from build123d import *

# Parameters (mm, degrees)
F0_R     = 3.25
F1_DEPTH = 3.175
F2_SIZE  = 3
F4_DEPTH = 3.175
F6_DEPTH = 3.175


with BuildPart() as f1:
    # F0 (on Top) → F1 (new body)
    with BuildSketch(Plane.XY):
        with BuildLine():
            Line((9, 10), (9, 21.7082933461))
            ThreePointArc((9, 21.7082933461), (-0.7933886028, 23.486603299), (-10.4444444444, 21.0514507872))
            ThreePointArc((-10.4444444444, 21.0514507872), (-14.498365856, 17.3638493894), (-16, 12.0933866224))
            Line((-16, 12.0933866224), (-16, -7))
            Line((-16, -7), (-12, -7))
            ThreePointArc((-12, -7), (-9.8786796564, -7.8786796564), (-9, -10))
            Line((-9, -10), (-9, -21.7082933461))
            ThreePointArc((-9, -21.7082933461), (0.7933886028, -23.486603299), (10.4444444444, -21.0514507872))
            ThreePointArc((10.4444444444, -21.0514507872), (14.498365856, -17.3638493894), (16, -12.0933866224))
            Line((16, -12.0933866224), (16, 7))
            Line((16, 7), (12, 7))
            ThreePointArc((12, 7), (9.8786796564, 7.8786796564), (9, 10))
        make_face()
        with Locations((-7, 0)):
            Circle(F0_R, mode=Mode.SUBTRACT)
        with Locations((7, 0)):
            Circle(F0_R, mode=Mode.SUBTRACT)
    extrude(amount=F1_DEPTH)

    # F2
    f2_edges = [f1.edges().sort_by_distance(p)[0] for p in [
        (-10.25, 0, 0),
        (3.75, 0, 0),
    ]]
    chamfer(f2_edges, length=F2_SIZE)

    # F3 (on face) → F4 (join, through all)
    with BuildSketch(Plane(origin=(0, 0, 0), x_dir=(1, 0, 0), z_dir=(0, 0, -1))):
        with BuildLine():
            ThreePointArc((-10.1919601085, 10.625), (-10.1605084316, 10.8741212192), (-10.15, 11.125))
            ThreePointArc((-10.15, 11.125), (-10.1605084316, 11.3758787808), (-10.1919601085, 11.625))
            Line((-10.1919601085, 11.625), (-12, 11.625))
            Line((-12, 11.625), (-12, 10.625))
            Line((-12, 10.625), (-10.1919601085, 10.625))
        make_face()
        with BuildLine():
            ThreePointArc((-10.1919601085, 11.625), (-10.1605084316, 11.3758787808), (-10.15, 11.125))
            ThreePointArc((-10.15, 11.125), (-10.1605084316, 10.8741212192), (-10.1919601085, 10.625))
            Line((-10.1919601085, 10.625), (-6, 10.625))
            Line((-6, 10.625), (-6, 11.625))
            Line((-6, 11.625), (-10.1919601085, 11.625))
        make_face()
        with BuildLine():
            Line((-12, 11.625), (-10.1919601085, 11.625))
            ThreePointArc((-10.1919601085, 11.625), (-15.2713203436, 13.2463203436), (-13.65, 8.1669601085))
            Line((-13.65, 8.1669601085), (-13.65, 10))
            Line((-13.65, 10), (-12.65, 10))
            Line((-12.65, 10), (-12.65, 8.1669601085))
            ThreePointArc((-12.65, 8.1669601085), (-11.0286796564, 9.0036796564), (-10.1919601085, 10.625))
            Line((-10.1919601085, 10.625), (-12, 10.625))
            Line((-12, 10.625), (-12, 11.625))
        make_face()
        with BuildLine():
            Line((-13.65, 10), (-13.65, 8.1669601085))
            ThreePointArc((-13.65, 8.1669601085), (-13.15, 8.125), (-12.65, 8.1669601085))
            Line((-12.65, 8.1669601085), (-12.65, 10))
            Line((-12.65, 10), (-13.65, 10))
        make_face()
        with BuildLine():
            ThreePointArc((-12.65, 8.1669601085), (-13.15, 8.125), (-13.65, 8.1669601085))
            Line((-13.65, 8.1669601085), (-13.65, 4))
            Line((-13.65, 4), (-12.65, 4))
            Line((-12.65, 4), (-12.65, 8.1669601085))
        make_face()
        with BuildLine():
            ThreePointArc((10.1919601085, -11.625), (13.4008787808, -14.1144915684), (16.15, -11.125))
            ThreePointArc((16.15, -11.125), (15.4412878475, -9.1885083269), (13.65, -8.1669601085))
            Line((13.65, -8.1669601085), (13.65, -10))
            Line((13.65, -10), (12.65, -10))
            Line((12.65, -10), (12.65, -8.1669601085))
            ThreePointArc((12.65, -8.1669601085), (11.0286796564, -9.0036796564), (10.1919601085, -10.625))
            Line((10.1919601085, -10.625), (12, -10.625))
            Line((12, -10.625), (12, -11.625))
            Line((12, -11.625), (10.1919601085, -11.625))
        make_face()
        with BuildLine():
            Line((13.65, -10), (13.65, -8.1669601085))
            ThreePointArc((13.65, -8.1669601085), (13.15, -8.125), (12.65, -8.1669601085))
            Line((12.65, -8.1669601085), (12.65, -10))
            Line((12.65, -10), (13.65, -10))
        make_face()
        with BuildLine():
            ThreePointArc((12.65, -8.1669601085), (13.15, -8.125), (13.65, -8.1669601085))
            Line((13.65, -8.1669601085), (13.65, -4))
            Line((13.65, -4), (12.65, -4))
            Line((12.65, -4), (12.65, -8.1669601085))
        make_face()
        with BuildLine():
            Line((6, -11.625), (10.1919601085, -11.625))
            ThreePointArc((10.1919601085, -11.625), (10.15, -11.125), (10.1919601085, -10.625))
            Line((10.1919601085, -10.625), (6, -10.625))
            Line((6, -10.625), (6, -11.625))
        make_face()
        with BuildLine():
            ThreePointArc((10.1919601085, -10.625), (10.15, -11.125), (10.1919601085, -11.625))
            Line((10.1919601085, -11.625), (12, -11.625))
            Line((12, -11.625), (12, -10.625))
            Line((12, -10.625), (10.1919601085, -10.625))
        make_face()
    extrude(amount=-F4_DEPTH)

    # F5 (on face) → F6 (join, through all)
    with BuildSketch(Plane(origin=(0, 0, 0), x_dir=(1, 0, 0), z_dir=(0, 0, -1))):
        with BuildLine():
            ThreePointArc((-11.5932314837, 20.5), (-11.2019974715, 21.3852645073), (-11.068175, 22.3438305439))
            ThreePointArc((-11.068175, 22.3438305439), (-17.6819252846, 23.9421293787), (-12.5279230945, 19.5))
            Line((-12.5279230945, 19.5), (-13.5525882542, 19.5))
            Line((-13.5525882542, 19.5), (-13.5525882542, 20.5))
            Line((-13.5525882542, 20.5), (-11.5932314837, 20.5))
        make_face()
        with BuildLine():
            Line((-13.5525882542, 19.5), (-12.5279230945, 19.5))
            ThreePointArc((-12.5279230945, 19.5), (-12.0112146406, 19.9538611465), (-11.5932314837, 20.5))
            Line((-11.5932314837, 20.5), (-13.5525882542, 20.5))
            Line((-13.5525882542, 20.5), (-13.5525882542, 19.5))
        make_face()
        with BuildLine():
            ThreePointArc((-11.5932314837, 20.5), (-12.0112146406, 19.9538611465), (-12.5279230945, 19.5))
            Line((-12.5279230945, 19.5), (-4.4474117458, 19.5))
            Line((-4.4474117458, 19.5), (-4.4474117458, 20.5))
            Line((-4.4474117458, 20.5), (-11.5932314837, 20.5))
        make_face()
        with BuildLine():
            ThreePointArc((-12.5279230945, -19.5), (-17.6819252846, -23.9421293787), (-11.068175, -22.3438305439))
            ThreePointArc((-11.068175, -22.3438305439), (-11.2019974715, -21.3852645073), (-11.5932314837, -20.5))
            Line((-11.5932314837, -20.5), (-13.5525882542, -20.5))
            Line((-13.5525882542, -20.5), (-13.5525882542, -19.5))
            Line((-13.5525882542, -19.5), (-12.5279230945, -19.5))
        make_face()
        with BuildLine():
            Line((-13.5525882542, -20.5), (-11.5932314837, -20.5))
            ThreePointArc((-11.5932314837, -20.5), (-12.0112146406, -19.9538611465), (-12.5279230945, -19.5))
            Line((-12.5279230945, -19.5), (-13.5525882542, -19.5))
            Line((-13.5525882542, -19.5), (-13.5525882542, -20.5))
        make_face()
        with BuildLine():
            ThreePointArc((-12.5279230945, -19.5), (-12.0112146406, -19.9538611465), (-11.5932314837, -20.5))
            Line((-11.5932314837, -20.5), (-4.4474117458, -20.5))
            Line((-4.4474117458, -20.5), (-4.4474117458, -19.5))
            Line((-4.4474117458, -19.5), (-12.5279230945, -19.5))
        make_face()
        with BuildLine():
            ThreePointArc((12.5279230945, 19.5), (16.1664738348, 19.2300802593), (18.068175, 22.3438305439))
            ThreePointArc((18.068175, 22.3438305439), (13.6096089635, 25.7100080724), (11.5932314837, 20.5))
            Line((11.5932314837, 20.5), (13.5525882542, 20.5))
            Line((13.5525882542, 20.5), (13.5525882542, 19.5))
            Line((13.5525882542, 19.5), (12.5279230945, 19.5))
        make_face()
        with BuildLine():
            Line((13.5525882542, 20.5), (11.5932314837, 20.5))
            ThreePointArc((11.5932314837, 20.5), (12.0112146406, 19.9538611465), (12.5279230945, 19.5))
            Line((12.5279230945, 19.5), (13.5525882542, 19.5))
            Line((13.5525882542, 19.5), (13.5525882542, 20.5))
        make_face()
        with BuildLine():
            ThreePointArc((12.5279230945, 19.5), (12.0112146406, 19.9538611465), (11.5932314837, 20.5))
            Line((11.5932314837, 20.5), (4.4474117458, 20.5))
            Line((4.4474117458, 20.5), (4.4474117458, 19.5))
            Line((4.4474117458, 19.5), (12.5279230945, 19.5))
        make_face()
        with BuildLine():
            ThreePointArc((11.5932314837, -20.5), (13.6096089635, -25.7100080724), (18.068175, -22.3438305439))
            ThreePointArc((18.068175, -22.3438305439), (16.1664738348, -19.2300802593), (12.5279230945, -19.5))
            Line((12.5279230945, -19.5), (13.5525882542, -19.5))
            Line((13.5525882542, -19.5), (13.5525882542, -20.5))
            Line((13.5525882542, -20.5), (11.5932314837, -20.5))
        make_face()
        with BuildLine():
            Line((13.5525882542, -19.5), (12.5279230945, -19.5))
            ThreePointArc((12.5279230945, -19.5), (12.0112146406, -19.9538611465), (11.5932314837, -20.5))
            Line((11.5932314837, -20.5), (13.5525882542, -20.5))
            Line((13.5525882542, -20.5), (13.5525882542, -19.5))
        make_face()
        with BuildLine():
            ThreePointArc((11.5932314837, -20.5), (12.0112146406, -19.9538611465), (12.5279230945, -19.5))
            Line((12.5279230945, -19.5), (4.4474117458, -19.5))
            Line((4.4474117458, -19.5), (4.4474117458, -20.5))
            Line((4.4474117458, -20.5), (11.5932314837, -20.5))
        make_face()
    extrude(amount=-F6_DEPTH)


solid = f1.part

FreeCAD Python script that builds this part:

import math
import FreeCAD as App
import Part
import Sketcher
from FreeCAD import Vector


def edges_at(feature, points):
    """Names of the edges that pass closest to the given points."""
    edges = feature.Shape.Edges
    near = lambda p: min(range(len(edges)), key=lambda i: edges[i].distToShape(Part.Vertex(*p))[0])
    return sorted({f"Edge{near(p) + 1}" for p in points})

doc = App.newDocument("Part")
body = doc.addObject("PartDesign::Body", "Body")

sketch1 = doc.addObject("Sketcher::SketchObject", "Sketch")
body.addObject(sketch1)
sketch1.AttachmentSupport = (doc.XY_Plane, [""])
sketch1.MapMode = "FlatFace"
sketch1.addGeometry(Part.LineSegment(Vector(9, 10, 0), Vector(9, 21.708293, 0)), False)
sketch1.addGeometry(Part.ArcOfCircle(Part.Circle(Vector(0, 0, 0), Vector(0, 0, 1), 23.5), math.radians(67.481686), math.radians(116.3878)), False)
sketch1.addGeometry(Part.ArcOfCircle(Part.Circle(Vector(-6, 12.093387, 0), Vector(0, 0, 1), 10), math.radians(116.3878), math.radians(180)), False)
sketch1.addGeometry(Part.LineSegment(Vector(-16, 12.093387, 0), Vector(-16, -7, 0)), False)
sketch1.addGeometry(Part.LineSegment(Vector(-16, -7, 0), Vector(-12, -7, 0)), False)
sketch1.addGeometry(Part.ArcOfCircle(Part.Circle(Vector(-12, -10, 0), Vector(0, 0, 1), 3), math.radians(0), math.radians(90)), False)
sketch1.addGeometry(Part.LineSegment(Vector(-9, -10, 0), Vector(-9, -21.708293, 0)), False)
sketch1.addGeometry(Part.ArcOfCircle(Part.Circle(Vector(0, 0, 0), Vector(0, 0, 1), 23.5), math.radians(-112.518314), math.radians(-63.6122)), False)
sketch1.addGeometry(Part.ArcOfCircle(Part.Circle(Vector(6, -12.093387, 0), Vector(0, 0, 1), 10), math.radians(-63.6122), math.radians(0)), False)
sketch1.addGeometry(Part.LineSegment(Vector(16, -12.093387, 0), Vector(16, 7, 0)), False)
sketch1.addGeometry(Part.LineSegment(Vector(16, 7, 0), Vector(12, 7, 0)), False)
sketch1.addGeometry(Part.ArcOfCircle(Part.Circle(Vector(12, 10, 0), Vector(0, 0, 1), 3), math.radians(180), math.radians(270)), False)
sketch1.addGeometry(Part.Circle(Vector(-7, 0, 0), Vector(0, 0, 1), 3.25), False)
sketch1.addGeometry(Part.Circle(Vector(7, 0, 0), Vector(0, 0, 1), 3.25), False)
sketch1.addConstraint(Sketcher.Constraint("Coincident", 0, 2, 1, 1))
sketch1.addConstraint(Sketcher.Constraint("Tangent", 1, 2, 2, 1))
sketch1.addConstraint(Sketcher.Constraint("Tangent", 2, 2, 3, 1))
sketch1.addConstraint(Sketcher.Constraint("Coincident", 3, 2, 4, 1))
sketch1.addConstraint(Sketcher.Constraint("Tangent", 4, 2, 5, 2))
sketch1.addConstraint(Sketcher.Constraint("Tangent", 5, 1, 6, 1))
sketch1.addConstraint(Sketcher.Constraint("Coincident", 6, 2, 7, 1))
sketch1.addConstraint(Sketcher.Constraint("Tangent", 7, 2, 8, 1))
sketch1.addConstraint(Sketcher.Constraint("Tangent", 8, 2, 9, 1))
sketch1.addConstraint(Sketcher.Constraint("Coincident", 9, 2, 10, 1))
sketch1.addConstraint(Sketcher.Constraint("Tangent", 10, 2, 11, 2))
sketch1.addConstraint(Sketcher.Constraint("Tangent", 11, 1, 0, 1))
sketch1.addConstraint(Sketcher.Constraint("Vertical", 0))
sketch1.addConstraint(Sketcher.Constraint("Vertical", 3))
sketch1.addConstraint(Sketcher.Constraint("Horizontal", 4))
sketch1.addConstraint(Sketcher.Constraint("Vertical", 6))
sketch1.addConstraint(Sketcher.Constraint("Vertical", 9))
sketch1.addConstraint(Sketcher.Constraint("Horizontal", 10))
sketch1.addConstraint(Sketcher.Constraint("Coincident", 1, 3, -1, 1))
sketch1.addConstraint(Sketcher.Constraint("Coincident", 7, 3, -1, 1))
sketch1.addConstraint(Sketcher.Constraint("Equal", 1, 7))
sketch1.addConstraint(Sketcher.Constraint("Equal", 2, 8))
sketch1.addConstraint(Sketcher.Constraint("Equal", 5, 11))
sketch1.addConstraint(Sketcher.Constraint("Equal", 12, 13))
sketch1.addConstraint(Sketcher.Constraint("Symmetric", 5, 3, 11, 3, -1, 1))
sketch1.addConstraint(Sketcher.Constraint("Symmetric", 12, 3, 13, 3, -1, 1))
sketch1.addConstraint(Sketcher.Constraint("PointOnObject", 12, 3, -1))
sketch1.addConstraint(Sketcher.Constraint("Equal", 4, 10))
sketch1.addConstraint(Sketcher.Constraint("Radius", 2, 10.0))
sketch1.addConstraint(Sketcher.Constraint("Radius", 5, 3.0))
sketch1.addConstraint(Sketcher.Constraint("Diameter", 12, 6.5))
sketch1.addConstraint(Sketcher.Constraint("Radius", 1, 23.5))
sketch1.addConstraint(Sketcher.Constraint("DistanceX", 4, 1, 4, 2, 4.0))
sketch1.addConstraint(Sketcher.Constraint("DistanceX", 2, 3, -1, 1, 6.0))
sketch1.addConstraint(Sketcher.Constraint("DistanceY", 5, 3, -1, 1, 10.0))
sketch1.addConstraint(Sketcher.Constraint("DistanceX", 12, 3, -1, 1, 7.0))
pad1 = doc.addObject("PartDesign::Pad", "Pad")
body.addObject(pad1)
pad1.Profile = sketch1
pad1.Length = 3.175
doc.recompute()

chamfer = doc.addObject("PartDesign::Chamfer", "Chamfer")
body.addObject(chamfer)
chamfer.Base = (pad1, edges_at(pad1, [(-10.25, 0, 0), (3.75, 0, 0)]))
chamfer.Size = 3

sketch2 = doc.addObject("Sketcher::SketchObject", "Sketch001")
body.addObject(sketch2)
sketch2.AttachmentSupport = (doc.XY_Plane, [""])
sketch2.MapMode = "FlatFace"
sketch2.addGeometry(Part.LineSegment(Vector(-10.19196, -10.625, 0), Vector(-6, -10.625, 0)), False)
sketch2.addGeometry(Part.LineSegment(Vector(-6, -10.625, 0), Vector(-6, -11.625, 0)), False)
sketch2.addGeometry(Part.LineSegment(Vector(-6, -11.625, 0), Vector(-10.19196, -11.625, 0)), False)
sketch2.addGeometry(Part.ArcOfCircle(Part.Circle(Vector(-13.15, -11.125, 0), Vector(0, 0, 1), 3), math.radians(99.594068), math.radians(350.405932)), False)
sketch2.addGeometry(Part.LineSegment(Vector(-13.65, -8.16696, 0), Vector(-13.65, -4, 0)), False)
sketch2.addGeometry(Part.LineSegment(Vector(-13.65, -4, 0), Vector(-12.65, -4, 0)), False)
sketch2.addGeometry(Part.LineSegment(Vector(-12.65, -4, 0), Vector(-12.65, -8.16696, 0)), False)
sketch2.addGeometry(Part.ArcOfCircle(Part.Circle(Vector(-13.15, -11.125, 0), Vector(0, 0, 1), 3), math.radians(9.594068), math.radians(80.405932)), False)
sketch2.addGeometry(Part.ArcOfCircle(Part.Circle(Vector(13.15, 11.125, 0), Vector(0, 0, 1), 3), math.radians(0), math.radians(170.405932)), False)
sketch2.addGeometry(Part.ArcOfCircle(Part.Circle(Vector(13.15, 11.125, 0), Vector(0, 0, 1), 3), math.radians(-80.405932), math.radians(0)), False)
sketch2.addGeometry(Part.LineSegment(Vector(13.65, 8.16696, 0), Vector(13.65, 4, 0)), False)
sketch2.addGeometry(Part.LineSegment(Vector(13.65, 4, 0), Vector(12.65, 4, 0)), False)
sketch2.addGeometry(Part.LineSegment(Vector(12.65, 4, 0), Vector(12.65, 8.16696, 0)), False)
sketch2.addGeometry(Part.ArcOfCircle(Part.Circle(Vector(13.15, 11.125, 0), Vector(0, 0, 1), 3), math.radians(-170.405932), math.radians(-99.594068)), False)
sketch2.addGeometry(Part.LineSegment(Vector(10.19196, 10.625, 0), Vector(6, 10.625, 0)), False)
sketch2.addGeometry(Part.LineSegment(Vector(6, 10.625, 0), Vector(6, 11.625, 0)), False)
sketch2.addGeometry(Part.LineSegment(Vector(6, 11.625, 0), Vector(10.19196, 11.625, 0)), False)
sketch2.addConstraint(Sketcher.Constraint("Coincident", 0, 2, 1, 1))
sketch2.addConstraint(Sketcher.Constraint("Coincident", 1, 2, 2, 1))
sketch2.addConstraint(Sketcher.Constraint("Coincident", 2, 2, 3, 2))
sketch2.addConstraint(Sketcher.Constraint("Coincident", 3, 1, 4, 1))
sketch2.addConstraint(Sketcher.Constraint("Coincident", 4, 2, 5, 1))
sketch2.addConstraint(Sketcher.Constraint("Coincident", 5, 2, 6, 1))
sketch2.addConstraint(Sketcher.Constraint("Coincident", 6, 2, 7, 2))
sketch2.addConstraint(Sketcher.Constraint("Coincident", 7, 1, 0, 1))
sketch2.addConstraint(Sketcher.Constraint("Tangent", 8, 1, 9, 2))
sketch2.addConstraint(Sketcher.Constraint("Coincident", 9, 1, 10, 1))
sketch2.addConstraint(Sketcher.Constraint("Coincident", 10, 2, 11, 1))
sketch2.addConstraint(Sketcher.Constraint("Coincident", 11, 2, 12, 1))
sketch2.addConstraint(Sketcher.Constraint("Coincident", 12, 2, 13, 2))
sketch2.addConstraint(Sketcher.Constraint("Coincident", 13, 1, 14, 1))
sketch2.addConstraint(Sketcher.Constraint("Coincident", 14, 2, 15, 1))
sketch2.addConstraint(Sketcher.Constraint("Coincident", 15, 2, 16, 1))
sketch2.addConstraint(Sketcher.Constraint("Coincident", 16, 2, 8, 2))
sketch2.addConstraint(Sketcher.Constraint("Horizontal", 0))
sketch2.addConstraint(Sketcher.Constraint("Vertical", 1))
sketch2.addConstraint(Sketcher.Constraint("Horizontal", 2))
sketch2.addConstraint(Sketcher.Constraint("Vertical", 4))
sketch2.addConstraint(Sketcher.Constraint("Horizontal", 5))
sketch2.addConstraint(Sketcher.Constraint("Vertical", 6))
sketch2.addConstraint(Sketcher.Constraint("Vertical", 10))
sketch2.addConstraint(Sketcher.Constraint("Horizontal", 11))
sketch2.addConstraint(Sketcher.Constraint("Vertical", 12))
sketch2.addConstraint(Sketcher.Constraint("Horizontal", 14))
sketch2.addConstraint(Sketcher.Constraint("Vertical", 15))
sketch2.addConstraint(Sketcher.Constraint("Horizontal", 16))
sketch2.addConstraint(Sketcher.Constraint("Coincident", 7, 3, 3, 3))
sketch2.addConstraint(Sketcher.Constraint("Coincident", 13, 3, 8, 3))
sketch2.addConstraint(Sketcher.Constraint("Equal", 3, 7))
sketch2.addConstraint(Sketcher.Constraint("Equal", 7, 8))
sketch2.addConstraint(Sketcher.Constraint("Equal", 8, 9))
sketch2.addConstraint(Sketcher.Constraint("Equal", 9, 13))
sketch2.addConstraint(Sketcher.Constraint("Symmetric", 3, 3, 8, 3, -1, 1))
sketch2.addConstraint(Sketcher.Constraint("Symmetric", 4, 2, 10, 2, -1, 1))
sketch2.addConstraint(Sketcher.Constraint("Symmetric", 0, 2, 14, 2, -1, 1))
sketch2.addConstraint(Sketcher.Constraint("Horizontal", 3, 1, 6, 2))
sketch2.addConstraint(Sketcher.Constraint("Horizontal", 13, 3, 8, 1))
sketch2.addConstraint(Sketcher.Constraint("Horizontal", 9, 1, 12, 2))
sketch2.addConstraint(Sketcher.Constraint("Vertical", 2, 2, 7, 1))
sketch2.addConstraint(Sketcher.Constraint("Vertical", 13, 1, 16, 2))
sketch2.addConstraint(Sketcher.Constraint("Equal", 11, 1))
sketch2.addConstraint(Sketcher.Constraint("Radius", 3, 3.0))
sketch2.addConstraint(Sketcher.Constraint("DistanceX", 5, 1, 5, 2, 1.0))
sketch2.addConstraint(Sketcher.Constraint("DistanceX", 0, 2, -1, 1, 6.0))
sketch2.addConstraint(Sketcher.Constraint("DistanceY", 4, 2, -1, 1, 4.0))
sketch2.addConstraint(Sketcher.Constraint("DistanceX", 3, 3, 8, 3, 26.3))
sketch2.addConstraint(Sketcher.Constraint("DistanceY", 3, 3, 8, 3, 22.25))
pad2 = doc.addObject("PartDesign::Pad", "Pad001")
body.addObject(pad2)
pad2.Profile = sketch2
pad2.Type = "UpToLast"

sketch3 = doc.addObject("Sketcher::SketchObject", "Sketch002")
body.addObject(sketch3)
sketch3.AttachmentSupport = (doc.XY_Plane, [""])
sketch3.MapMode = "FlatFace"
sketch3.addGeometry(Part.ArcOfCircle(Part.Circle(Vector(-14.568175, -22.343831, 0), Vector(0, 0, 1), 3.5), math.radians(0), math.radians(31.790086)), False)
sketch3.addGeometry(Part.ArcOfCircle(Part.Circle(Vector(-14.568175, -22.343831, 0), Vector(0, 0, 1), 3.5), math.radians(54.343174), math.radians(360)), False)
sketch3.addGeometry(Part.LineSegment(Vector(-12.527923, -19.5, 0), Vector(-4.447412, -19.5, 0)), False)
sketch3.addGeometry(Part.LineSegment(Vector(-4.447412, -19.5, 0), Vector(-4.447412, -20.5, 0)), False)
sketch3.addGeometry(Part.LineSegment(Vector(-4.447412, -20.5, 0), Vector(-11.593231, -20.5, 0)), False)
sketch3.addGeometry(Part.ArcOfCircle(Part.Circle(Vector(-14.568175, 22.343831, 0), Vector(0, 0, 1), 3.5), math.radians(0), math.radians(305.656826)), False)
sketch3.addGeometry(Part.ArcOfCircle(Part.Circle(Vector(-14.568175, 22.343831, 0), Vector(0, 0, 1), 3.5), math.radians(-31.790086), math.radians(0)), False)
sketch3.addGeometry(Part.LineSegment(Vector(-11.593231, 20.5, 0), Vector(-4.447412, 20.5, 0)), False)
sketch3.addGeometry(Part.LineSegment(Vector(-4.447412, 20.5, 0), Vector(-4.447412, 19.5, 0)), False)
sketch3.addGeometry(Part.LineSegment(Vector(-4.447412, 19.5, 0), Vector(-12.527923, 19.5, 0)), False)
sketch3.addGeometry(Part.ArcOfCircle(Part.Circle(Vector(14.568175, -22.343831, 0), Vector(0, 0, 1), 3.5), math.radians(148.209914), math.radians(485.656826)), False)
sketch3.addGeometry(Part.LineSegment(Vector(11.593231, -20.5, 0), Vector(4.447412, -20.5, 0)), False)
sketch3.addGeometry(Part.LineSegment(Vector(4.447412, -20.5, 0), Vector(4.447412, -19.5, 0)), False)
sketch3.addGeometry(Part.LineSegment(Vector(4.447412, -19.5, 0), Vector(12.527923, -19.5, 0)), False)
sketch3.addGeometry(Part.ArcOfCircle(Part.Circle(Vector(14.568175, 22.343831, 0), Vector(0, 0, 1), 3.5), math.radians(-125.656826), math.radians(211.790086)), False)
sketch3.addGeometry(Part.LineSegment(Vector(12.527923, 19.5, 0), Vector(4.447412, 19.5, 0)), False)
sketch3.addGeometry(Part.LineSegment(Vector(4.447412, 19.5, 0), Vector(4.447412, 20.5, 0)), False)
sketch3.addGeometry(Part.LineSegment(Vector(4.447412, 20.5, 0), Vector(11.593231, 20.5, 0)), False)
sketch3.addConstraint(Sketcher.Constraint("Tangent", 0, 1, 1, 2))
sketch3.addConstraint(Sketcher.Constraint("Coincident", 1, 1, 2, 1))
sketch3.addConstraint(Sketcher.Constraint("Coincident", 2, 2, 3, 1))
sketch3.addConstraint(Sketcher.Constraint("Coincident", 3, 2, 4, 1))
sketch3.addConstraint(Sketcher.Constraint("Coincident", 4, 2, 0, 2))
sketch3.addConstraint(Sketcher.Constraint("Tangent", 5, 1, 6, 2))
sketch3.addConstraint(Sketcher.Constraint("Coincident", 6, 1, 7, 1))
sketch3.addConstraint(Sketcher.Constraint("Coincident", 7, 2, 8, 1))
sketch3.addConstraint(Sketcher.Constraint("Coincident", 8, 2, 9, 1))
sketch3.addConstraint(Sketcher.Constraint("Coincident", 9, 2, 5, 2))
sketch3.addConstraint(Sketcher.Constraint("Coincident", 10, 1, 11, 1))
sketch3.addConstraint(Sketcher.Constraint("Coincident", 11, 2, 12, 1))
sketch3.addConstraint(Sketcher.Constraint("Coincident", 12, 2, 13, 1))
sketch3.addConstraint(Sketcher.Constraint("Coincident", 13, 2, 10, 2))
sketch3.addConstraint(Sketcher.Constraint("Coincident", 14, 1, 15, 1))
sketch3.addConstraint(Sketcher.Constraint("Coincident", 15, 2, 16, 1))
sketch3.addConstraint(Sketcher.Constraint("Coincident", 16, 2, 17, 1))
sketch3.addConstraint(Sketcher.Constraint("Coincident", 17, 2, 14, 2))
sketch3.addConstraint(Sketcher.Constraint("Horizontal", 2))
sketch3.addConstraint(Sketcher.Constraint("Vertical", 3))
sketch3.addConstraint(Sketcher.Constraint("Horizontal", 4))
sketch3.addConstraint(Sketcher.Constraint("Horizontal", 7))
sketch3.addConstraint(Sketcher.Constraint("Vertical", 8))
sketch3.addConstraint(Sketcher.Constraint("Horizontal", 9))
sketch3.addConstraint(Sketcher.Constraint("Horizontal", 11))
sketch3.addConstraint(Sketcher.Constraint("Vertical", 12))
sketch3.addConstraint(Sketcher.Constraint("Horizontal", 13))
sketch3.addConstraint(Sketcher.Constraint("Horizontal", 15))
sketch3.addConstraint(Sketcher.Constraint("Vertical", 16))
sketch3.addConstraint(Sketcher.Constraint("Horizontal", 17))
sketch3.addConstraint(Sketcher.Constraint("Equal", 0, 1))
sketch3.addConstraint(Sketcher.Constraint("Equal", 1, 5))
sketch3.addConstraint(Sketcher.Constraint("Equal", 5, 6))
sketch3.addConstraint(Sketcher.Constraint("Equal", 6, 10))
sketch3.addConstraint(Sketcher.Constraint("Equal", 10, 14))
sketch3.addConstraint(Sketcher.Constraint("Symmetric", 5, 3, 10, 3, -1, 1))
sketch3.addConstraint(Sketcher.Constraint("Symmetric", 0, 3, 14, 3, -1, 1))
sketch3.addConstraint(Sketcher.Constraint("Symmetric", 7, 2, 11, 2, -1, 1))
sketch3.addConstraint(Sketcher.Constraint("Symmetric", 2, 2, 15, 2, -1, 1))
sketch3.addConstraint(Sketcher.Constraint("Symmetric", 0, 3, 10, 3, -2))
sketch3.addConstraint(Sketcher.Constraint("Symmetric", 3, 2, 11, 2, -2))
sketch3.addConstraint(Sketcher.Constraint("Horizontal", 10, 3, 0, 1))
sketch3.addConstraint(Sketcher.Constraint("Horizontal", 14, 3, 5, 1))
sketch3.addConstraint(Sketcher.Constraint("Horizontal", 2, 2, 12, 2))
sketch3.addConstraint(Sketcher.Constraint("Horizontal", 9, 2, 14, 1))
sketch3.addConstraint(Sketcher.Constraint("Horizontal", 7, 2, 16, 2))
sketch3.addConstraint(Sketcher.Constraint("Radius", 0, 3.5))
sketch3.addConstraint(Sketcher.Constraint("DistanceY", 3, 2, 3, 1, 1.0))
sketch3.addConstraint(Sketcher.Constraint("DistanceY", 1, 1, 6, 1, 40.0))
sketch3.addConstraint(Sketcher.Constraint("DistanceX", 2, 1, 2, 2, 8.080511))
sketch3.addConstraint(Sketcher.Constraint("DistanceX", 4, 2, 4, 1, 7.14582))
sketch3.addConstraint(Sketcher.Constraint("DistanceX", 1, 1, 10, 3, 27.096098))
pad3 = doc.addObject("PartDesign::Pad", "Pad002")
body.addObject(pad3)
pad3.Profile = sketch3
pad3.Type = "UpToLast"

doc.recompute()
